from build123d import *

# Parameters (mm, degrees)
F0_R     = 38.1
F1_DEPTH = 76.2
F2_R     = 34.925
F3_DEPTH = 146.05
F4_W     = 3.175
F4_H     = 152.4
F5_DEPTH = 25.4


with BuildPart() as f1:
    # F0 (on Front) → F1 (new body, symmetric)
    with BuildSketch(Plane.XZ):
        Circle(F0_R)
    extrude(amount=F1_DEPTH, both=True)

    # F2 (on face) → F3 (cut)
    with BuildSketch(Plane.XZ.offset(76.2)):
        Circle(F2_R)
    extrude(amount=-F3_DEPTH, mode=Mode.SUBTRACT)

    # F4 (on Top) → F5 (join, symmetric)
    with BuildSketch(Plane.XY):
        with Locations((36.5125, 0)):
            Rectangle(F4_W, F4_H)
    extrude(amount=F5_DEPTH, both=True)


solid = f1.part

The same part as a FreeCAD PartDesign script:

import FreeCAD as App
import Part
import Sketcher
from FreeCAD import Vector
Q = App.Units.Quantity

doc = App.newDocument("Part")
body = doc.addObject("PartDesign::Body", "Body")

# Sketch on XZ plane
sketch1 = body.newObject("Sketcher::SketchObject", "Sketch")
sketch1.AttachmentSupport = (doc.getObject("XZ_Plane"), [""])
sketch1.MapMode = "FlatFace"
sketch1.addGeometry(Part.Circle(Vector(0, 0, 0), Vector(0, 0, 1), 38), False)
sketch1.addConstraint(Sketcher.Constraint("Coincident", 0, 3, -1, 1))
sketch1.addConstraint(Sketcher.Constraint("Diameter", 0, Q("3 in")))
pad1 = body.newObject("PartDesign::Pad", "Pad")
pad1.Profile = sketch1
pad1.Length = Q("6 in")
pad1.Midplane = True

# Sketch on XZ plane
sketch2 = body.newObject("Sketcher::SketchObject", "Sketch001")
sketch2.AttachmentSupport = (doc.getObject("XZ_Plane"), [""])
sketch2.MapMode = "FlatFace"
sketch2.AttachmentOffset = App.Placement(Vector(0, 0, 3 * 25.4), App.Rotation())
sketch2.addGeometry(Part.Circle(Vector(0, 0, 0), Vector(0, 0, 1), 35), False)
sketch2.addConstraint(Sketcher.Constraint("Coincident", 0, 3, -1, 1))
sketch2.addConstraint(Sketcher.Constraint("Diameter", 0, Q("2.75 in")))
pocket1 = body.newObject("PartDesign::Pocket", "Pocket")
pocket1.Profile = sketch2
pocket1.Length = Q("5.75 in")

# Sketch on XY plane
sketch3 = body.newObject("Sketcher::SketchObject", "Sketch002")
sketch3.AttachmentSupport = (doc.getObject("XY_Plane"), [""])
sketch3.MapMode = "FlatFace"
sketch3.addGeometry(Part.LineSegment(Vector(34.9, 76.2, 0), Vector(34.9, -76.2, 0)), False)
sketch3.addGeometry(Part.LineSegment(Vector(34.9, -76.2, 0), Vector(38.1, -76.2, 0)), False)
sketch3.addGeometry(Part.LineSegment(Vector(38.1, -76.2, 0), Vector(38.1, 76.2, 0)), False)
sketch3.addGeometry(Part.LineSegment(Vector(38.1, 76.2, 0), Vector(34.9, 76.2, 0)), False)
sketch3.addConstraint(Sketcher.Constraint("Coincident", 0, 2, 1, 1))
sketch3.addConstraint(Sketcher.Constraint("Coincident", 1, 2, 2, 1))
sketch3.addConstraint(Sketcher.Constraint("Coincident", 2, 2, 3, 1))
sketch3.addConstraint(Sketcher.Constraint("Coincident", 3, 2, 0, 1))
sketch3.addConstraint(Sketcher.Constraint("Vertical", 0))
sketch3.addConstraint(Sketcher.Constraint("Horizontal", 1))
sketch3.addConstraint(Sketcher.Constraint("Vertical", 2))
sketch3.addConstraint(Sketcher.Constraint("Horizontal", 3))
sketch3.addConstraint(Sketcher.Constraint("DistanceY", 0, 2, 0, 1, Q("6 in")))
sketch3.addConstraint(Sketcher.Constraint("DistanceY", 0, 2, -1, 1, Q("3 in")))
sketch3.addConstraint(Sketcher.Constraint("DistanceX", -1, 1, 1, 2, Q("1.5 in")))
sketch3.addConstraint(Sketcher.Constraint("DistanceX", 1, 1, 1, 2, Q("0.125 in")))
pad2 = body.newObject("PartDesign::Pad", "Pad001")
pad2.Profile = sketch3
pad2.Length = Q("2 in")
pad2.Midplane = True

doc.recompute()
